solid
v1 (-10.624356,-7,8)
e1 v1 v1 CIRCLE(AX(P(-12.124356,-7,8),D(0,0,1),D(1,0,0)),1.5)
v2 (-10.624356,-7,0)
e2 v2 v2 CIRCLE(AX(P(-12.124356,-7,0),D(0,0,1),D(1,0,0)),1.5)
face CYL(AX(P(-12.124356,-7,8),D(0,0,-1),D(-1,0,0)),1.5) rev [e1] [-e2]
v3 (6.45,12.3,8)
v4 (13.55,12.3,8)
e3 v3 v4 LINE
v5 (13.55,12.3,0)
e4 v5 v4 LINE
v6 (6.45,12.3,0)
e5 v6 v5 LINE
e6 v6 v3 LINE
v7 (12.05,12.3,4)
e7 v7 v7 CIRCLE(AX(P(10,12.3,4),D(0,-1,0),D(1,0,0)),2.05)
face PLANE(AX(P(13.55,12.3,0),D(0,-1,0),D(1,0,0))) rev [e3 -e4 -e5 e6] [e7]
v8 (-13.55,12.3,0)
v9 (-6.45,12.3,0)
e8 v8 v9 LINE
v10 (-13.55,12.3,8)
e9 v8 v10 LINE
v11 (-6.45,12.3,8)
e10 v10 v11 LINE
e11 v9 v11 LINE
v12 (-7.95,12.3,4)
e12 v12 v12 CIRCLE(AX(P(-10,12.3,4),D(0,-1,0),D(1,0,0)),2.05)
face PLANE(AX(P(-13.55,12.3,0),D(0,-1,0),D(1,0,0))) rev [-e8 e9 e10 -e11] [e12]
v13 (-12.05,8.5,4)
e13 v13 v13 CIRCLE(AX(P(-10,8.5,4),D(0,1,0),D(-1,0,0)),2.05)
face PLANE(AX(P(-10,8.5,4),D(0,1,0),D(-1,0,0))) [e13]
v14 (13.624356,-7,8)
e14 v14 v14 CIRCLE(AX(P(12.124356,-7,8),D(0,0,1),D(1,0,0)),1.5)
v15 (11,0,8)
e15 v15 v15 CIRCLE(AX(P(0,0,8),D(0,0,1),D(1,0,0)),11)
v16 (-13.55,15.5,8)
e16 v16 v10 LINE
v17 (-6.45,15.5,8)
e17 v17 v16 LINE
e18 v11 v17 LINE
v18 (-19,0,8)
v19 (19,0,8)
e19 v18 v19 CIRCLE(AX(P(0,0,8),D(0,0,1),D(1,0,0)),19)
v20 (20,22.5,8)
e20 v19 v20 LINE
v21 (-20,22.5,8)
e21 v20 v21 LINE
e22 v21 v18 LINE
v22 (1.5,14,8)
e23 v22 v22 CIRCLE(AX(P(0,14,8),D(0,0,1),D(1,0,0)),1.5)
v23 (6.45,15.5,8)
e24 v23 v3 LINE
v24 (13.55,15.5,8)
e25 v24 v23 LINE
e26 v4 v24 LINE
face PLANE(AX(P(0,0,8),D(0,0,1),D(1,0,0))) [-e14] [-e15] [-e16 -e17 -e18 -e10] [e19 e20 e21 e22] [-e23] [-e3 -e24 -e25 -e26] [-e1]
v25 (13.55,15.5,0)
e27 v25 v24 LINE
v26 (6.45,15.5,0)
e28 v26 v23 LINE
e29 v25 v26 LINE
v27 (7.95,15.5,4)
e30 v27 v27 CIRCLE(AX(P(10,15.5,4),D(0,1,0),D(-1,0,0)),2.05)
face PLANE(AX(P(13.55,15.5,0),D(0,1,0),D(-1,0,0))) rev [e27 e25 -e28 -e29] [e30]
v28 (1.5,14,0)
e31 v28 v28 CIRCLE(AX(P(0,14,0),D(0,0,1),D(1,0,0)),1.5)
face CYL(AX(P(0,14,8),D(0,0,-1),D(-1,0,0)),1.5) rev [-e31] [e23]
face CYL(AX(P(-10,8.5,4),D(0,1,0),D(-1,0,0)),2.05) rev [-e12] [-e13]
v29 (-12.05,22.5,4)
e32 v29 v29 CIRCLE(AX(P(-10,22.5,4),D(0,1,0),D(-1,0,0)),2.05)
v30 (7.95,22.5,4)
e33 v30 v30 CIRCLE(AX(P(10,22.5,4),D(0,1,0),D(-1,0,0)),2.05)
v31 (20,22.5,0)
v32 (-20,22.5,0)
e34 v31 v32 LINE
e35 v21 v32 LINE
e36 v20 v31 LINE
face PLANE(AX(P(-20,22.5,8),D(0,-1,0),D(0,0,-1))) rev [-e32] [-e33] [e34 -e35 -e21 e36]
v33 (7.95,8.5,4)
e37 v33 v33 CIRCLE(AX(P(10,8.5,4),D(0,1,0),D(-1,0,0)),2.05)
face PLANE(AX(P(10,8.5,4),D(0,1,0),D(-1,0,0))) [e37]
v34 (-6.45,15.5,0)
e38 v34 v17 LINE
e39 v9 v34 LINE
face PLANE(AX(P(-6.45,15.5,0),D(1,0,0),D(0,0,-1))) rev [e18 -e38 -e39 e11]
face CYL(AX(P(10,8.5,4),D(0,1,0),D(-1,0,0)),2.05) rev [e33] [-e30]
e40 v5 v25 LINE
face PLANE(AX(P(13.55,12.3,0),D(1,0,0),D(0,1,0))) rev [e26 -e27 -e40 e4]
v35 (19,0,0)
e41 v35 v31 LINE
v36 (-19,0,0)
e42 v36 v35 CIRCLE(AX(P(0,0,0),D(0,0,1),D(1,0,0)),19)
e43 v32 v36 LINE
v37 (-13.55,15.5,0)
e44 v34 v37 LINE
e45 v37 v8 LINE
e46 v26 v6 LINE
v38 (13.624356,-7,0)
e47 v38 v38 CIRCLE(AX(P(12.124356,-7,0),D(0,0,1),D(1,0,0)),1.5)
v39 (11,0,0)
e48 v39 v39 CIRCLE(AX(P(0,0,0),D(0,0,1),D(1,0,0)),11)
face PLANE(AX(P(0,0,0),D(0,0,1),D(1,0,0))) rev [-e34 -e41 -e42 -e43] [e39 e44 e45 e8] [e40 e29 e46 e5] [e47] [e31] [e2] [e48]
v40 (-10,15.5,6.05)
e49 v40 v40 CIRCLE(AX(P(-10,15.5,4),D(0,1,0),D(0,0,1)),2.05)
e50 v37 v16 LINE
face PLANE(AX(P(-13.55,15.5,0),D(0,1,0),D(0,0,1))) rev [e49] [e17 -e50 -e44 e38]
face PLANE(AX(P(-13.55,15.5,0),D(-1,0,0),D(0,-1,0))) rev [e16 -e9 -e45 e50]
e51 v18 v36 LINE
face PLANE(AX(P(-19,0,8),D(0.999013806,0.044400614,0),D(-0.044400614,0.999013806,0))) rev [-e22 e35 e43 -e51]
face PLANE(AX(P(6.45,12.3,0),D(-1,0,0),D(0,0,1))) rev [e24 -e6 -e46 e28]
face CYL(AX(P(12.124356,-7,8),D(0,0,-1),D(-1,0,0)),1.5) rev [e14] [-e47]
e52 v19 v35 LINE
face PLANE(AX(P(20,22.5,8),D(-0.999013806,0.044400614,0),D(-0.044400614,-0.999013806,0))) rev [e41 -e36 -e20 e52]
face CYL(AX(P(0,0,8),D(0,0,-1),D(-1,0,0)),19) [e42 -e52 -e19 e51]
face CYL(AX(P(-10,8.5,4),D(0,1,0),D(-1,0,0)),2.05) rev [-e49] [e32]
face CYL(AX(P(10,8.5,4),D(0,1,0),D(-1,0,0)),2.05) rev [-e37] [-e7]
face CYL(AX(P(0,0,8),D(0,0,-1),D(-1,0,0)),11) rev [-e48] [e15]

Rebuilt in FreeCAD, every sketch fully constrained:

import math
import FreeCAD as App
import Part
import Sketcher

V = App.Vector
Q = App.Units.Quantity

doc = App.newDocument("Part")
params = doc.addObject("Spreadsheet::Sheet", "Params")
for row, (alias, value) in enumerate([
    ("sketch1_diameter", "3 mm"),
    ("sketch1_diameter2", "22 mm"),
    ("sketch1_radius", "19 mm"),
    ("sketch1_width", "40 mm"),
    ("pad1_length", "8 mm"),
    ("sketch2_width", "7.1 mm"),
    ("sketch2_height", "3.2 mm"),
    ("sketch3_diameter", "4.1 mm"),
    ("pocket2_length", "14 mm"),
], start=1):
    params.set(f"A{row}", alias)
    params.set(f"B{row}", "=" + value)
    params.setAlias(f"B{row}", alias)

body = doc.addObject("PartDesign::Body", "Body")

# Sketch on XY plane
sketch1 = doc.addObject("Sketcher::SketchObject", "Sketch")
body.addObject(sketch1)
sketch1.AttachmentSupport = (doc.XY_Plane, [""])
sketch1.MapMode = "FlatFace"
sketch1.addGeometry([
    Part.LineSegment(V(-20, 22.5, 0), V(-19, 0, 0)),  # 0
    Part.ArcOfCircle(Part.Circle(V(0, 0, 0), V(0, 0, 1), 19), math.radians(180), math.radians(360)),  # 1
    Part.LineSegment(V(19, 0, 0), V(20, 22.5, 0)),  # 2
    Part.LineSegment(V(20, 22.5, 0), V(-20, 22.5, 0)),  # 3
    Part.Circle(V(12.1, -7, 0), V(0, 0, 1), 1.5),  # 4
    Part.Circle(V(-12.1, -7, 0), V(0, 0, 1), 1.5),  # 5
    Part.Circle(V(0, 0, 0), V(0, 0, 1), 11),  # 6
    Part.Circle(V(0, 14, 0), V(0, 0, 1), 1.5),  # 7
], False)
sketch1.addConstraint([
    Sketcher.Constraint("Coincident", 0, 2, 1, 1),
    Sketcher.Constraint("Coincident", 1, 2, 2, 1),
    Sketcher.Constraint("Coincident", 2, 2, 3, 1),
    Sketcher.Constraint("Coincident", 3, 2, 0, 1),
    Sketcher.Constraint("Horizontal", 3),
    Sketcher.Constraint("Coincident", 1, 3, -1, 1),
    Sketcher.Constraint("Coincident", 6, 3, -1, 1),
    Sketcher.Constraint("Equal", 4, 5),
    Sketcher.Constraint("Equal", 5, 7),
    Sketcher.Constraint("Symmetric", 4, 3, 5, 3, -2),
    Sketcher.Constraint("PointOnObject", 7, 3, -2),
    Sketcher.Constraint("PointOnObject", 0, 2, -1),
    Sketcher.Constraint("PointOnObject", 1, 2, -1),
    Sketcher.Constraint("Equal", 0, 2),
    Sketcher.Constraint("Diameter", 4, Q("3 mm")),
    Sketcher.Constraint("Diameter", 6, Q("22 mm")),
    Sketcher.Constraint("Radius", 1, Q("19 mm")),
    Sketcher.Constraint("DistanceX", 3, 2, 3, 1, Q("40 mm")),
    Sketcher.Constraint("DistanceY", 4, 3, -1, 1, Q("7 mm")),
    Sketcher.Constraint("DistanceY", -1, 1, 7, 3, Q("14 mm")),
    Sketcher.Constraint("DistanceY", -1, 1, 2, 2, Q("22.5 mm")),
    Sketcher.Constraint("DistanceX", 5, 3, 4, 3, Q("24.248711 mm")),
])
sketch1.setExpression("Constraints[14]", "Params.sketch1_diameter")
sketch1.setExpression("Constraints[15]", "Params.sketch1_diameter2")
sketch1.setExpression("Constraints[16]", "Params.sketch1_radius")
sketch1.setExpression("Constraints[17]", "Params.sketch1_width")
pad1 = doc.addObject("PartDesign::Pad", "Pad")
body.addObject(pad1)
pad1.Profile = sketch1
pad1.setExpression("Length", "Params.pad1_length")

# Sketch on XY plane
sketch2 = doc.addObject("Sketcher::SketchObject", "Sketch001")
body.addObject(sketch2)
sketch2.AttachmentSupport = (doc.XY_Plane, [""])
sketch2.MapMode = "FlatFace"
sketch2.AttachmentOffset = App.Placement(V(0, 0, 8), App.Rotation())
sketch2.addGeometry([
    Part.LineSegment(V(-13.6, 15.5, 0), V(-13.6, 12.3, 0)),  # 0
    Part.LineSegment(V(-13.6, 12.3, 0), V(-6.5, 12.3, 0)),  # 1
    Part.LineSegment(V(-6.5, 12.3, 0), V(-6.5, 15.5, 0)),  # 2
    Part.LineSegment(V(-6.5, 15.5, 0), V(-13.6, 15.5, 0)),  # 3
    Part.LineSegment(V(6.5, 15.5, 0), V(6.5, 12.3, 0)),  # 4
    Part.LineSegment(V(6.5, 12.3, 0), V(13.6, 12.3, 0)),  # 5
    Part.LineSegment(V(13.6, 12.3, 0), V(13.6, 15.5, 0)),  # 6
    Part.LineSegment(V(13.6, 15.5, 0), V(6.5, 15.5, 0)),  # 7
], False)
sketch2.addConstraint([
    Sketcher.Constraint("Coincident", 0, 2, 1, 1),
    Sketcher.Constraint("Coincident", 1, 2, 2, 1),
    Sketcher.Constraint("Coincident", 2, 2, 3, 1),
    Sketcher.Constraint("Coincident", 3, 2, 0, 1),
    Sketcher.Constraint("Coincident", 4, 2, 5, 1),
    Sketcher.Constraint("Coincident", 5, 2, 6, 1),
    Sketcher.Constraint("Coincident", 6, 2, 7, 1),
    Sketcher.Constraint("Coincident", 7, 2, 4, 1),
    Sketcher.Constraint("Vertical", 0),
    Sketcher.Constraint("Horizontal", 1),
    Sketcher.Constraint("Vertical", 2),
    Sketcher.Constraint("Horizontal", 3),
    Sketcher.Constraint("Vertical", 4),
    Sketcher.Constraint("Horizontal", 5),
    Sketcher.Constraint("Vertical", 6),
    Sketcher.Constraint("Horizontal", 7),
    Sketcher.Constraint("Symmetric", 1, 2, 4, 2, -2),
    Sketcher.Constraint("Symmetric", 3, 2, 6, 2, -2),
    Sketcher.Constraint("DistanceX", 1, 1, 1, 2, Q("7.1 mm")),
    Sketcher.Constraint("DistanceY", 0, 2, 0, 1, Q("3.2 mm")),
    Sketcher.Constraint("DistanceX", 0, 2, 4, 2, Q("20 mm")),
    Sketcher.Constraint("DistanceY", -1, 1, 0, 2, Q("12.3 mm")),
])
sketch2.setExpression("Constraints[18]", "Params.sketch2_width")
sketch2.setExpression("Constraints[19]", "Params.sketch2_height")
pocket1 = doc.addObject("PartDesign::Pocket", "Pocket")
body.addObject(pocket1)
pocket1.Profile = sketch2
pocket1.Type = "ThroughAll"

# Sketch on XZ plane
sketch3 = doc.addObject("Sketcher::SketchObject", "Sketch002")
body.addObject(sketch3)
sketch3.AttachmentSupport = (doc.XZ_Plane, [""])
sketch3.MapMode = "FlatFace"
sketch3.AttachmentOffset = App.Placement(V(0, 0, -22.5), App.Rotation())
sketch3.addGeometry([
    Part.Circle(V(-10, 4, 0), V(0, 0, 1), 2),
    Part.Circle(V(10, 4, 0), V(0, 0, 1), 2),
], False)
sketch3.addConstraint([
    Sketcher.Constraint("Equal", 0, 1),
    Sketcher.Constraint("Symmetric", 0, 3, 1, 3, -2),
    Sketcher.Constraint("Diameter", 0, Q("4.1 mm")),
    Sketcher.Constraint("DistanceX", 0, 3, -1, 1, Q("10 mm")),
    Sketcher.Constraint("DistanceY", -1, 1, 0, 3, Q("4 mm")),
])
sketch3.setExpression("Constraints[2]", "Params.sketch3_diameter")
pocket2 = doc.addObject("PartDesign::Pocket", "Pocket001")
body.addObject(pocket2)
pocket2.Profile = sketch3
pocket2.setExpression("Length", "Params.pocket2_length")
pocket2.Reversed = True

doc.recompute()
